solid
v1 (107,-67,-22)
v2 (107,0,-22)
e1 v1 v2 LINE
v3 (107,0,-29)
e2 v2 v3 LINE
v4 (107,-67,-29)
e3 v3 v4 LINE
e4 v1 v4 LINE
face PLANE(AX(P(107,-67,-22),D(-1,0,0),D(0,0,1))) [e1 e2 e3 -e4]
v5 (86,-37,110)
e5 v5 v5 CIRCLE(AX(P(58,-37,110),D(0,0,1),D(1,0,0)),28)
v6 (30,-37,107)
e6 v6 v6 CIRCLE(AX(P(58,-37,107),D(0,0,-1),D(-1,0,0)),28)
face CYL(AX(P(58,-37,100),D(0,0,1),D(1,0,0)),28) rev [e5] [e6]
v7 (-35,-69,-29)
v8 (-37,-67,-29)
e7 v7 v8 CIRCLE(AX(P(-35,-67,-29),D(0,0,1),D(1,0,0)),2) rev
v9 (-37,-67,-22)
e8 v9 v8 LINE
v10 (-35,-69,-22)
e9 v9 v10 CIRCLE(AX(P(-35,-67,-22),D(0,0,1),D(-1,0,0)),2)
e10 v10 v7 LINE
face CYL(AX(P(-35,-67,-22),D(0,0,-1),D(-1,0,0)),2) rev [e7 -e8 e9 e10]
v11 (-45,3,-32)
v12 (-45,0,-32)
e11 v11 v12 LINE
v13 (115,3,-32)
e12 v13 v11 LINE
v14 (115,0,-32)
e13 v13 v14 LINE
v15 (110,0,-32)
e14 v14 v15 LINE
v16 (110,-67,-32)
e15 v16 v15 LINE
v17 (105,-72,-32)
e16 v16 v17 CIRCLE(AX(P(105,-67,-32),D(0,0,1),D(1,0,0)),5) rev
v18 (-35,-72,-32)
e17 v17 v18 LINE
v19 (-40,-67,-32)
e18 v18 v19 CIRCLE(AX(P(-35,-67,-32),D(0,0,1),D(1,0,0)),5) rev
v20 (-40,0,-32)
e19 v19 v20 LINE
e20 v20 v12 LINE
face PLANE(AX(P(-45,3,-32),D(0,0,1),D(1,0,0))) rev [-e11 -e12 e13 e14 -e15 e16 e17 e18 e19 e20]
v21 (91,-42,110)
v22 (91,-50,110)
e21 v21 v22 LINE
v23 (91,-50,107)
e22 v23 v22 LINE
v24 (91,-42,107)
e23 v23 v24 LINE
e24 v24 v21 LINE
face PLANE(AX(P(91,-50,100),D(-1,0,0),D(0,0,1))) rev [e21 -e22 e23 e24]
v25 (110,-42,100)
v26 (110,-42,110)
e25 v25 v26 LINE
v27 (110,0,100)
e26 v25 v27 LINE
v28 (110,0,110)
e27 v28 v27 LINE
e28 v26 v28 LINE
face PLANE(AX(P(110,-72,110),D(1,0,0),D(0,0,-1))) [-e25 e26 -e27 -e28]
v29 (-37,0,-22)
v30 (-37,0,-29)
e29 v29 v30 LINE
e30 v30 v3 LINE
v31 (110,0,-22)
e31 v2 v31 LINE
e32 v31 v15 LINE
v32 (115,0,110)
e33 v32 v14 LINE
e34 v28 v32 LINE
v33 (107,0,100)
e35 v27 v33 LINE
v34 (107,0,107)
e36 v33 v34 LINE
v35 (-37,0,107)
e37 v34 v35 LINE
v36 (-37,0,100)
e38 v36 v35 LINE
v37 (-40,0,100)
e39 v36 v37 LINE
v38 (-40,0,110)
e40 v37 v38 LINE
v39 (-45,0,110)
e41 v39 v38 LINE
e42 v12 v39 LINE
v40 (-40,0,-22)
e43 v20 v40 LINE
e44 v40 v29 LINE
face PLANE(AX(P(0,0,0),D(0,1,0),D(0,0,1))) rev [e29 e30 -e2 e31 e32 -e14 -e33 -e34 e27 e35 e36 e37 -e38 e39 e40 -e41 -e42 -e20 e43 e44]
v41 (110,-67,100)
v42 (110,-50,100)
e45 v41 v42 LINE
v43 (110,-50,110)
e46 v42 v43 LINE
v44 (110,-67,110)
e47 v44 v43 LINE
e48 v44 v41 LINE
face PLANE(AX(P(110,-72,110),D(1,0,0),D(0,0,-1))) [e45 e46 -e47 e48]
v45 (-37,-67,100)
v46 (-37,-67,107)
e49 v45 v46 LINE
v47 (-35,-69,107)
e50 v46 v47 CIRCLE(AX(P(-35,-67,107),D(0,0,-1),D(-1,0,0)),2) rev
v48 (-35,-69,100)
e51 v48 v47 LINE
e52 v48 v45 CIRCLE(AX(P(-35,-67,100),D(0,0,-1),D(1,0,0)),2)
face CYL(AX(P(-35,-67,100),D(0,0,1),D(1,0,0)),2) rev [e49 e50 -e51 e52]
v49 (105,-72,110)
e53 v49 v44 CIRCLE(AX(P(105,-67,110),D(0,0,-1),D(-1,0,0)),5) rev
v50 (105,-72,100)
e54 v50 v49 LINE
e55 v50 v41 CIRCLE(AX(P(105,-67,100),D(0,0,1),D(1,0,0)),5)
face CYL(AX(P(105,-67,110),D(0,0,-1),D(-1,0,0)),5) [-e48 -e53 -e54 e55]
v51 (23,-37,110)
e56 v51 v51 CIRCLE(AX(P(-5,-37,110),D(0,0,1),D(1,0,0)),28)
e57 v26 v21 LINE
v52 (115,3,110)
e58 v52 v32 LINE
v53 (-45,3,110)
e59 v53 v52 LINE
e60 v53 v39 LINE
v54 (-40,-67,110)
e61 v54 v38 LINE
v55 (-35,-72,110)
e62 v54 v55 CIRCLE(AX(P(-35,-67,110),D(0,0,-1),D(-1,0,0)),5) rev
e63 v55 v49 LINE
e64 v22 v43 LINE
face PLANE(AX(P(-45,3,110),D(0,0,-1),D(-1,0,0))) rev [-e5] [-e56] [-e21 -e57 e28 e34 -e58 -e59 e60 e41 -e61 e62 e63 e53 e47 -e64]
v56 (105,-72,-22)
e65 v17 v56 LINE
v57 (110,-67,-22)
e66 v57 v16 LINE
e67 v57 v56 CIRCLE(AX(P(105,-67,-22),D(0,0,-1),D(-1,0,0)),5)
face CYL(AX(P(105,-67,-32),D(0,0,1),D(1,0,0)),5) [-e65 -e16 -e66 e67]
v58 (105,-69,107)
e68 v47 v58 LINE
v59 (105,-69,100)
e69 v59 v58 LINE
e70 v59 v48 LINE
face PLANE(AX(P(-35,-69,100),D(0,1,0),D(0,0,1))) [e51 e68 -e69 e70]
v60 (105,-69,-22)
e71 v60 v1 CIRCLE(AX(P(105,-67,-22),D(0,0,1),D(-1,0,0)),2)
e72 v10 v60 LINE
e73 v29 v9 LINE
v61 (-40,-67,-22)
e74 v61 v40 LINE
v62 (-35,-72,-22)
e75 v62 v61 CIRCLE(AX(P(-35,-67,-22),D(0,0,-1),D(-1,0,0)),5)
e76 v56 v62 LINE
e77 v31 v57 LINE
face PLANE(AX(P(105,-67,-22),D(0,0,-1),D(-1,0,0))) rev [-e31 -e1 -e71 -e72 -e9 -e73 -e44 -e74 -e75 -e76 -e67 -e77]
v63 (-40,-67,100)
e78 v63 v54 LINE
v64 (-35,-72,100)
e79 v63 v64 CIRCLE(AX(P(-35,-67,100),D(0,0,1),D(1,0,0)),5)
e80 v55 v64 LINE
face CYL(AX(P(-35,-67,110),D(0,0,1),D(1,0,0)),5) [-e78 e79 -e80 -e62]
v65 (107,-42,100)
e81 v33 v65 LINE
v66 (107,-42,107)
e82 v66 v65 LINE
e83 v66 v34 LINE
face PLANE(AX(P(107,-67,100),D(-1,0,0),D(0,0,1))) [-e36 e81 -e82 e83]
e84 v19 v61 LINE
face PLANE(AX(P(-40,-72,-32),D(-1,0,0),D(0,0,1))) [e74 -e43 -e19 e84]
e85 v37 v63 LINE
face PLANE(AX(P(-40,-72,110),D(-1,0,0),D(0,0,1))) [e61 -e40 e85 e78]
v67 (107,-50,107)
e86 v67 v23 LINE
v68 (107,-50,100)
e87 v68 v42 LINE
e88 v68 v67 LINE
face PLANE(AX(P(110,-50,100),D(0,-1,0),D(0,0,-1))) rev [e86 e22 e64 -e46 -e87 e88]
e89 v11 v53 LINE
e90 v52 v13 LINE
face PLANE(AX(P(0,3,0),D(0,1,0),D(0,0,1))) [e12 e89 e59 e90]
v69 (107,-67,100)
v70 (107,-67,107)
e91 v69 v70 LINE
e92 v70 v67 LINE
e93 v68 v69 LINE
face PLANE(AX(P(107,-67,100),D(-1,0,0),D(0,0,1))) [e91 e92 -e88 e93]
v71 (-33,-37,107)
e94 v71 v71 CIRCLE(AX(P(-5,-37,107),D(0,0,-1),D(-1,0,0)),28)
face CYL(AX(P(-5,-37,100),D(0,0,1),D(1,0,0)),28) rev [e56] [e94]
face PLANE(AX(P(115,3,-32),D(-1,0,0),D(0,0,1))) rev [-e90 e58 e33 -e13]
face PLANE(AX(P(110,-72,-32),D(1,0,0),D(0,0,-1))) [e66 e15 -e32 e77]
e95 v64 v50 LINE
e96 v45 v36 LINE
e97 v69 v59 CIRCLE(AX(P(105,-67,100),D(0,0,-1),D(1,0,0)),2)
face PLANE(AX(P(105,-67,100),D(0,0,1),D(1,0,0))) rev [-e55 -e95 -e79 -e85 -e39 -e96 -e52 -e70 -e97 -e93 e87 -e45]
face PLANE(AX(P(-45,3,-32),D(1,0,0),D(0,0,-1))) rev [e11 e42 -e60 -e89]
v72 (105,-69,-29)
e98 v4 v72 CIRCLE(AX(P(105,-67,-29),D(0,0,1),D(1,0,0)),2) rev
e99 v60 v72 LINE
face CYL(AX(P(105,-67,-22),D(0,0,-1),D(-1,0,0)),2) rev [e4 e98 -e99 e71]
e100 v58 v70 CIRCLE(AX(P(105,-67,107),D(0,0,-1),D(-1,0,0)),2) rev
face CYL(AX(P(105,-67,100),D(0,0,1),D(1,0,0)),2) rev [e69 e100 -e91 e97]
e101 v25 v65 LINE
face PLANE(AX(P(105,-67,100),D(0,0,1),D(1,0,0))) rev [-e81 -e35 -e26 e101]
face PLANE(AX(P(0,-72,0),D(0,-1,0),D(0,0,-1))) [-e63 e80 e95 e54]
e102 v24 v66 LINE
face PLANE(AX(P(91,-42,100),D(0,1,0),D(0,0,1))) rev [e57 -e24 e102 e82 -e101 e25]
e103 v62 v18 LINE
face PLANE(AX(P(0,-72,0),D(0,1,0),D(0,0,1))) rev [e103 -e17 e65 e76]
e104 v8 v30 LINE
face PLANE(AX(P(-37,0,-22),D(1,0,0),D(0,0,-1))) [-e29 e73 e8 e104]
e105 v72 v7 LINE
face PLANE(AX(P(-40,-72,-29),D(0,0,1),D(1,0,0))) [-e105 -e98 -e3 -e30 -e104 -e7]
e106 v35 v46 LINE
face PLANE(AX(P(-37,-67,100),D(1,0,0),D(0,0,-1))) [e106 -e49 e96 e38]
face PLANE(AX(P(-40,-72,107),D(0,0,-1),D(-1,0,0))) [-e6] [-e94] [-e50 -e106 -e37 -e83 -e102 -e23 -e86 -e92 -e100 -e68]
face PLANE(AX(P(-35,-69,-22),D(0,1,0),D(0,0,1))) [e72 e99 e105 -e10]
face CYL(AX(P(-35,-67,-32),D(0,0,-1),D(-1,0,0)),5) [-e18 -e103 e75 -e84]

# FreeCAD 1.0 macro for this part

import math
import FreeCAD as App
import Part
import Sketcher

V = App.Vector
Q = App.Units.Quantity


def edges_at(feature, points):
    """Names of the edges that pass closest to the given points."""
    edges = feature.Shape.Edges
    near = lambda p: min(range(len(edges)), key=lambda i: edges[i].distToShape(Part.Vertex(*p))[0])
    return sorted({f"Edge{near(p) + 1}" for p in points})

doc = App.newDocument("Part")
body = doc.addObject("PartDesign::Body", "Body")

# Sketch on XZ plane
sketch1 = doc.addObject("Sketcher::SketchObject", "Sketch")
body.addObject(sketch1)
sketch1.AttachmentSupport = (doc.XZ_Plane, [""])
sketch1.MapMode = "FlatFace"
sketch1.addGeometry([
    Part.LineSegment(V(-45, -32, 0), V(-45, 110, 0)),
    Part.LineSegment(V(-45, 110, 0), V(115, 110, 0)),
    Part.LineSegment(V(115, 110, 0), V(115, -32, 0)),
    Part.LineSegment(V(115, -32, 0), V(-45, -32, 0)),
], False)
sketch1.addConstraint([
    Sketcher.Constraint("Coincident", 0, 2, 1, 1),
    Sketcher.Constraint("Coincident", 1, 2, 2, 1),
    Sketcher.Constraint("Coincident", 2, 2, 3, 1),
    Sketcher.Constraint("Coincident", 3, 2, 0, 1),
    Sketcher.Constraint("Vertical", 0),
    Sketcher.Constraint("Horizontal", 1),
    Sketcher.Constraint("Vertical", 2),
    Sketcher.Constraint("Horizontal", 3),
    Sketcher.Constraint("DistanceX", 1, 1, 1, 2, Q("160 mm")),
    Sketcher.Constraint("DistanceY", 0, 1, 0, 2, Q("142 mm")),
    Sketcher.Constraint("DistanceX", 0, 2, -1, 1, Q("45 mm")),
    Sketcher.Constraint("DistanceY", -1, 1, 0, 2, Q("110 mm")),
])
pad1 = doc.addObject("PartDesign::Pad", "Pad")
body.addObject(pad1)
pad1.Profile = sketch1
pad1.Length = 3
pad1.Reversed = True

# Sketch on XZ plane
sketch2 = doc.addObject("Sketcher::SketchObject", "Sketch001")
body.addObject(sketch2)
sketch2.AttachmentSupport = (doc.XZ_Plane, [""])
sketch2.MapMode = "FlatFace"
sketch2.addGeometry([
    Part.LineSegment(V(-40, -32, 0), V(-40, -29, 0)),  # 0
    Part.LineSegment(V(-40, -29, 0), V(110, -29, 0)),  # 1
    Part.LineSegment(V(110, -29, 0), V(110, -32, 0)),  # 2
    Part.LineSegment(V(110, -32, 0), V(-40, -32, 0)),  # 3
    Part.LineSegment(V(-40, 107, 0), V(-40, 110, 0)),  # 4
    Part.LineSegment(V(-40, 110, 0), V(110, 110, 0)),  # 5
    Part.LineSegment(V(110, 110, 0), V(110, 107, 0)),  # 6
    Part.LineSegment(V(110, 107, 0), V(-40, 107, 0)),  # 7
], False)
sketch2.addConstraint([
    Sketcher.Constraint("Coincident", 0, 2, 1, 1),
    Sketcher.Constraint("Coincident", 1, 2, 2, 1),
    Sketcher.Constraint("Coincident", 2, 2, 3, 1),
    Sketcher.Constraint("Coincident", 3, 2, 0, 1),
    Sketcher.Constraint("Coincident", 4, 2, 5, 1),
    Sketcher.Constraint("Coincident", 5, 2, 6, 1),
    Sketcher.Constraint("Coincident", 6, 2, 7, 1),
    Sketcher.Constraint("Coincident", 7, 2, 4, 1),
    Sketcher.Constraint("Vertical", 0),
    Sketcher.Constraint("Horizontal", 1),
    Sketcher.Constraint("Vertical", 2),
    Sketcher.Constraint("Horizontal", 3),
    Sketcher.Constraint("Vertical", 4),
    Sketcher.Constraint("Horizontal", 5),
    Sketcher.Constraint("Vertical", 6),
    Sketcher.Constraint("Horizontal", 7),
    Sketcher.Constraint("Vertical", 3, 2, 4, 2),
    Sketcher.Constraint("Vertical", 2, 2, 5, 2),
    Sketcher.Constraint("Equal", 2, 4),
    Sketcher.Constraint("DistanceX", 1, 1, 1, 2, Q("150 mm")),
    Sketcher.Constraint("DistanceY", 0, 1, 0, 2, Q("3 mm")),
    Sketcher.Constraint("DistanceX", 0, 2, -1, 1, Q("40 mm")),
    Sketcher.Constraint("DistanceY", 0, 2, -1, 1, Q("29 mm")),
    Sketcher.Constraint("DistanceY", -1, 1, 4, 2, Q("110 mm")),
])
pad2 = doc.addObject("PartDesign::Pad", "Pad001")
body.addObject(pad2)
pad2.Profile = sketch2
pad2.Length = 72
doc.recompute()

fillet = doc.addObject("PartDesign::Fillet", "Fillet")
body.addObject(fillet)
fillet.Base = (pad2, edges_at(pad2, [
    (-40, -72, -30.5),
    (110, -72, -30.5),
    (-40, -72, 108.5),
    (110, -72, 108.5),
]))
fillet.Radius = 5

# Sketch on XY plane
sketch3 = doc.addObject("Sketcher::SketchObject", "Sketch002")
body.addObject(sketch3)
sketch3.AttachmentSupport = (doc.XY_Plane, [""])
sketch3.MapMode = "FlatFace"
sketch3.AttachmentOffset = App.Placement(V(0, 0, 110), App.Rotation())
sketch3.addGeometry([
    Part.LineSegment(V(110, -67, 0), V(110, 0, 0)),  # 0
    Part.LineSegment(V(110, 0, 0), V(107, 0, 0)),  # 1
    Part.LineSegment(V(107, 0, 0), V(107, -67, 0)),  # 2
    Part.ArcOfCircle(Part.Circle(V(105, -67, 0), V(0, 0, 1), 2), math.radians(-90), math.radians(0)),  # 3
    Part.LineSegment(V(105, -69, 0), V(-35, -69, 0)),  # 4
    Part.ArcOfCircle(Part.Circle(V(-35, -67, 0), V(0, 0, 1), 2), math.radians(-180), math.radians(-90)),  # 5
    Part.LineSegment(V(-37, -67, 0), V(-37, 0, 0)),  # 6
    Part.LineSegment(V(-37, 0, 0), V(-40, 0, 0)),  # 7
    Part.LineSegment(V(-40, 0, 0), V(-40, -67, 0)),  # 8
    Part.ArcOfCircle(Part.Circle(V(-35, -67, 0), V(0, 0, 1), 5), math.radians(180), math.radians(270)),  # 9
    Part.LineSegment(V(-35, -72, 0), V(105, -72, 0)),  # 10
    Part.ArcOfCircle(Part.Circle(V(105, -67, 0), V(0, 0, 1), 5), math.radians(-90), math.radians(0)),  # 11
], False)
sketch3.addConstraint([
    Sketcher.Constraint("Coincident", 0, 2, 1, 1),
    Sketcher.Constraint("Coincident", 1, 2, 2, 1),
    Sketcher.Constraint("Tangent", 2, 2, 3, 2),
    Sketcher.Constraint("Tangent", 3, 1, 4, 1),
    Sketcher.Constraint("Tangent", 4, 2, 5, 2),
    Sketcher.Constraint("Tangent", 5, 1, 6, 1),
    Sketcher.Constraint("Coincident", 6, 2, 7, 1),
    Sketcher.Constraint("Coincident", 7, 2, 8, 1),
    Sketcher.Constraint("Tangent", 8, 2, 9, 1),
    Sketcher.Constraint("Tangent", 9, 2, 10, 1),
    Sketcher.Constraint("Tangent", 10, 2, 11, 1),
    Sketcher.Constraint("Tangent", 11, 2, 0, 1),
    Sketcher.Constraint("Vertical", 0),
    Sketcher.Constraint("Horizontal", 1),
    Sketcher.Constraint("Vertical", 2),
    Sketcher.Constraint("Horizontal", 4),
    Sketcher.Constraint("Vertical", 6),
    Sketcher.Constraint("Horizontal", 7),
    Sketcher.Constraint("Vertical", 8),
    Sketcher.Constraint("Horizontal", 10),
    Sketcher.Constraint("Coincident", 9, 3, 5, 3),
    Sketcher.Constraint("Coincident", 11, 3, 3, 3),
    Sketcher.Constraint("Equal", 3, 5),
    Sketcher.Constraint("PointOnObject", 0, 2, -1),
    Sketcher.Constraint("PointOnObject", 6, 2, -1),
    Sketcher.Constraint("Radius", 3, Q("2 mm")),
    Sketcher.Constraint("Radius", 9, Q("5 mm")),
    Sketcher.Constraint("DistanceX", 4, 2, 4, 1, Q("140 mm")),
    Sketcher.Constraint("DistanceY", 0, 1, 0, 2, Q("67 mm")),
    Sketcher.Constraint("DistanceX", -1, 1, 3, 3, Q("105 mm")),
])
pad3 = doc.addObject("PartDesign::Pad", "Pad002")
body.addObject(pad3)
pad3.Profile = sketch3
pad3.Length = 10
pad3.Reversed = True

# Sketch on XY plane
sketch4 = doc.addObject("Sketcher::SketchObject", "Sketch003")
body.addObject(sketch4)
sketch4.AttachmentSupport = (doc.XY_Plane, [""])
sketch4.MapMode = "FlatFace"
sketch4.AttachmentOffset = App.Placement(V(0, 0, -22), App.Rotation())
sketch4.addGeometry([
    Part.LineSegment(V(110, 0, 0), V(110, -67, 0)),  # 0
    Part.ArcOfCircle(Part.Circle(V(105, -67, 0), V(0, 0, 1), 5), math.radians(-90), math.radians(0)),  # 1
    Part.LineSegment(V(105, -72, 0), V(-35, -72, 0)),  # 2
    Part.ArcOfCircle(Part.Circle(V(-35, -67, 0), V(0, 0, 1), 5), math.radians(180), math.radians(270)),  # 3
    Part.LineSegment(V(-40, -67, 0), V(-40, 0, 0)),  # 4
    Part.LineSegment(V(-40, 0, 0), V(-37, 0, 0)),  # 5
    Part.LineSegment(V(-37, 0, 0), V(-37, -67, 0)),  # 6
    Part.ArcOfCircle(Part.Circle(V(-35, -67, 0), V(0, 0, 1), 2), math.radians(-180), math.radians(-90)),  # 7
    Part.LineSegment(V(-35, -69, 0), V(105, -69, 0)),  # 8
    Part.ArcOfCircle(Part.Circle(V(105, -67, 0), V(0, 0, 1), 2), math.radians(-90), math.radians(0)),  # 9
    Part.LineSegment(V(107, -67, 0), V(107, 0, 0)),  # 10
    Part.LineSegment(V(107, 0, 0), V(110, 0, 0)),  # 11
], False)
sketch4.addConstraint([
    Sketcher.Constraint("Tangent", 0, 2, 1, 2),
    Sketcher.Constraint("Tangent", 1, 1, 2, 1),
    Sketcher.Constraint("Tangent", 2, 2, 3, 2),
    Sketcher.Constraint("Tangent", 3, 1, 4, 1),
    Sketcher.Constraint("Coincident", 4, 2, 5, 1),
    Sketcher.Constraint("Coincident", 5, 2, 6, 1),
    Sketcher.Constraint("Tangent", 6, 2, 7, 1),
    Sketcher.Constraint("Tangent", 7, 2, 8, 1),
    Sketcher.Constraint("Tangent", 8, 2, 9, 1),
    Sketcher.Constraint("Tangent", 9, 2, 10, 1),
    Sketcher.Constraint("Coincident", 10, 2, 11, 1),
    Sketcher.Constraint("Coincident", 11, 2, 0, 1),
    Sketcher.Constraint("Vertical", 0),
    Sketcher.Constraint("Horizontal", 2),
    Sketcher.Constraint("Vertical", 4),
    Sketcher.Constraint("Horizontal", 5),
    Sketcher.Constraint("Vertical", 6),
    Sketcher.Constraint("Horizontal", 8),
    Sketcher.Constraint("Vertical", 10),
    Sketcher.Constraint("Horizontal", 11),
    Sketcher.Constraint("Coincident", 7, 3, 3, 3),
    Sketcher.Constraint("Coincident", 9, 3, 1, 3),
    Sketcher.Constraint("Equal", 1, 3),
    Sketcher.Constraint("PointOnObject", 4, 2, -1),
    Sketcher.Constraint("PointOnObject", 10, 2, -1),
    Sketcher.Constraint("Radius", 1, Q("5 mm")),
    Sketcher.Constraint("Radius", 7, Q("2 mm")),
    Sketcher.Constraint("DistanceX", 2, 2, 2, 1, Q("140 mm")),
    Sketcher.Constraint("DistanceY", 0, 2, 0, 1, Q("67 mm")),
    Sketcher.Constraint("DistanceX", -1, 1, 1, 3, Q("105 mm")),
])
pad4 = doc.addObject("PartDesign::Pad", "Pad003")
body.addObject(pad4)
pad4.Profile = sketch4
pad4.Length = 10
pad4.Reversed = True

# Sketch on XY plane
sketch5 = doc.addObject("Sketcher::SketchObject", "Sketch004")
body.addObject(sketch5)
sketch5.AttachmentSupport = (doc.XY_Plane, [""])
sketch5.MapMode = "FlatFace"
sketch5.AttachmentOffset = App.Placement(V(0, 0, 110), App.Rotation())
sketch5.addGeometry([
    Part.LineSegment(V(91, -42, 0), V(91, -50, 0)),
    Part.LineSegment(V(91, -50, 0), V(110, -50, 0)),
    Part.LineSegment(V(110, -50, 0), V(110, -42, 0)),
    Part.LineSegment(V(110, -42, 0), V(91, -42, 0)),
], False)
sketch5.addConstraint([
    Sketcher.Constraint("Coincident", 0, 2, 1, 1),
    Sketcher.Constraint("Coincident", 1, 2, 2, 1),
    Sketcher.Constraint("Coincident", 2, 2, 3, 1),
    Sketcher.Constraint("Coincident", 3, 2, 0, 1),
    Sketcher.Constraint("Vertical", 0),
    Sketcher.Constraint("Horizontal", 1),
    Sketcher.Constraint("Vertical", 2),
    Sketcher.Constraint("Horizontal", 3),
    Sketcher.Constraint("DistanceX", 1, 1, 1, 2, Q("19 mm")),
    Sketcher.Constraint("DistanceY", 0, 2, 0, 1, Q("8 mm")),
    Sketcher.Constraint("DistanceX", -1, 1, 0, 2, Q("91 mm")),
    Sketcher.Constraint("DistanceY", 0, 2, -1, 1, Q("50 mm")),
])
pocket1 = doc.addObject("PartDesign::Pocket", "Pocket")
body.addObject(pocket1)
pocket1.Profile = sketch5
pocket1.Length = 10

# Sketch on XY plane
sketch6 = doc.addObject("Sketcher::SketchObject", "Sketch005")
body.addObject(sketch6)
sketch6.AttachmentSupport = (doc.XY_Plane, [""])
sketch6.MapMode = "FlatFace"
sketch6.AttachmentOffset = App.Placement(V(0, 0, 110), App.Rotation())
sketch6.addGeometry([
    Part.Circle(V(-5, -37, 0), V(0, 0, 1), 28),
    Part.Circle(V(58, -37, 0), V(0, 0, 1), 28),
], False)
sketch6.addConstraint([
    Sketcher.Constraint("Equal", 0, 1),
    Sketcher.Constraint("Horizontal", 0, 3, 1, 3),
    Sketcher.Constraint("Diameter", 0, Q("56 mm")),
    Sketcher.Constraint("DistanceX", 0, 3, -1, 1, Q("5 mm")),
    Sketcher.Constraint("DistanceY", 0, 3, -1, 1, Q("37 mm")),
    Sketcher.Constraint("DistanceX", -1, 1, 1, 3, Q("58 mm")),
])
pocket2 = doc.addObject("PartDesign::Pocket", "Pocket001")
body.addObject(pocket2)
pocket2.Profile = sketch6
pocket2.Length = 10

doc.recompute()
